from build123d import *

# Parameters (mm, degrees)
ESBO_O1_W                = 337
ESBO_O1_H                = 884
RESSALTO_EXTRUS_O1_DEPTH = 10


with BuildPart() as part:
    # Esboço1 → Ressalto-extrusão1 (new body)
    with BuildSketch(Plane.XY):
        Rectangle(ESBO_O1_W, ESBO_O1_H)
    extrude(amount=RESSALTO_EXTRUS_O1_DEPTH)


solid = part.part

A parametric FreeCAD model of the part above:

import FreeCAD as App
import Part
import Sketcher

V = App.Vector

doc = App.newDocument("Part")
params = doc.addObject("Spreadsheet::Sheet", "Params")
for row, (alias, value) in enumerate([
    ("sketch1_width", "337 mm"),
    ("sketch1_height", "884 mm"),
    ("pad1_length", "10 mm"),
], start=1):
    params.set(f"A{row}", alias)
    params.set(f"B{row}", "=" + value)
    params.setAlias(f"B{row}", alias)

body = doc.addObject("PartDesign::Body", "Body")

sketch1 = doc.addObject("Sketcher::SketchObject", "Sketch")
body.addObject(sketch1)
sketch1.AttachmentSupport = (doc.XY_Plane, [""])
sketch1.MapMode = "FlatFace"
sketch1.addGeometry(Part.LineSegment(V(-168, 442, 0), V(-168, -442, 0)), False)
sketch1.addGeometry(Part.LineSegment(V(-168, -442, 0), V(168, -442, 0)), False)
sketch1.addGeometry(Part.LineSegment(V(168, -442, 0), V(168, 442, 0)), False)
sketch1.addGeometry(Part.LineSegment(V(168, 442, 0), V(-168, 442, 0)), False)
sketch1.addConstraint(Sketcher.Constraint("Coincident", 0, 2, 1, 1))
sketch1.addConstraint(Sketcher.Constraint("Coincident", 1, 2, 2, 1))
sketch1.addConstraint(Sketcher.Constraint("Coincident", 2, 2, 3, 1))
sketch1.addConstraint(Sketcher.Constraint("Coincident", 3, 2, 0, 1))
sketch1.addConstraint(Sketcher.Constraint("Vertical", 0))
sketch1.addConstraint(Sketcher.Constraint("Horizontal", 1))
sketch1.addConstraint(Sketcher.Constraint("Vertical", 2))
sketch1.addConstraint(Sketcher.Constraint("Horizontal", 3))
sketch1.addConstraint(Sketcher.Constraint("Symmetric", 0, 2, 2, 2, -1, 1))
sketch1.addConstraint(Sketcher.Constraint("DistanceX", 1, 1, 1, 2, 337.0))
sketch1.addConstraint(Sketcher.Constraint("DistanceY", 0, 2, 0, 1, 884.0))
sketch1.setExpression("Constraints[9]", "Params.sketch1_width")
sketch1.setExpression("Constraints[10]", "Params.sketch1_height")
pad1 = doc.addObject("PartDesign::Pad", "Pad")
body.addObject(pad1)
pad1.Profile = sketch1
pad1.setExpression("Length", "Params.pad1_length")

doc.recompute()
